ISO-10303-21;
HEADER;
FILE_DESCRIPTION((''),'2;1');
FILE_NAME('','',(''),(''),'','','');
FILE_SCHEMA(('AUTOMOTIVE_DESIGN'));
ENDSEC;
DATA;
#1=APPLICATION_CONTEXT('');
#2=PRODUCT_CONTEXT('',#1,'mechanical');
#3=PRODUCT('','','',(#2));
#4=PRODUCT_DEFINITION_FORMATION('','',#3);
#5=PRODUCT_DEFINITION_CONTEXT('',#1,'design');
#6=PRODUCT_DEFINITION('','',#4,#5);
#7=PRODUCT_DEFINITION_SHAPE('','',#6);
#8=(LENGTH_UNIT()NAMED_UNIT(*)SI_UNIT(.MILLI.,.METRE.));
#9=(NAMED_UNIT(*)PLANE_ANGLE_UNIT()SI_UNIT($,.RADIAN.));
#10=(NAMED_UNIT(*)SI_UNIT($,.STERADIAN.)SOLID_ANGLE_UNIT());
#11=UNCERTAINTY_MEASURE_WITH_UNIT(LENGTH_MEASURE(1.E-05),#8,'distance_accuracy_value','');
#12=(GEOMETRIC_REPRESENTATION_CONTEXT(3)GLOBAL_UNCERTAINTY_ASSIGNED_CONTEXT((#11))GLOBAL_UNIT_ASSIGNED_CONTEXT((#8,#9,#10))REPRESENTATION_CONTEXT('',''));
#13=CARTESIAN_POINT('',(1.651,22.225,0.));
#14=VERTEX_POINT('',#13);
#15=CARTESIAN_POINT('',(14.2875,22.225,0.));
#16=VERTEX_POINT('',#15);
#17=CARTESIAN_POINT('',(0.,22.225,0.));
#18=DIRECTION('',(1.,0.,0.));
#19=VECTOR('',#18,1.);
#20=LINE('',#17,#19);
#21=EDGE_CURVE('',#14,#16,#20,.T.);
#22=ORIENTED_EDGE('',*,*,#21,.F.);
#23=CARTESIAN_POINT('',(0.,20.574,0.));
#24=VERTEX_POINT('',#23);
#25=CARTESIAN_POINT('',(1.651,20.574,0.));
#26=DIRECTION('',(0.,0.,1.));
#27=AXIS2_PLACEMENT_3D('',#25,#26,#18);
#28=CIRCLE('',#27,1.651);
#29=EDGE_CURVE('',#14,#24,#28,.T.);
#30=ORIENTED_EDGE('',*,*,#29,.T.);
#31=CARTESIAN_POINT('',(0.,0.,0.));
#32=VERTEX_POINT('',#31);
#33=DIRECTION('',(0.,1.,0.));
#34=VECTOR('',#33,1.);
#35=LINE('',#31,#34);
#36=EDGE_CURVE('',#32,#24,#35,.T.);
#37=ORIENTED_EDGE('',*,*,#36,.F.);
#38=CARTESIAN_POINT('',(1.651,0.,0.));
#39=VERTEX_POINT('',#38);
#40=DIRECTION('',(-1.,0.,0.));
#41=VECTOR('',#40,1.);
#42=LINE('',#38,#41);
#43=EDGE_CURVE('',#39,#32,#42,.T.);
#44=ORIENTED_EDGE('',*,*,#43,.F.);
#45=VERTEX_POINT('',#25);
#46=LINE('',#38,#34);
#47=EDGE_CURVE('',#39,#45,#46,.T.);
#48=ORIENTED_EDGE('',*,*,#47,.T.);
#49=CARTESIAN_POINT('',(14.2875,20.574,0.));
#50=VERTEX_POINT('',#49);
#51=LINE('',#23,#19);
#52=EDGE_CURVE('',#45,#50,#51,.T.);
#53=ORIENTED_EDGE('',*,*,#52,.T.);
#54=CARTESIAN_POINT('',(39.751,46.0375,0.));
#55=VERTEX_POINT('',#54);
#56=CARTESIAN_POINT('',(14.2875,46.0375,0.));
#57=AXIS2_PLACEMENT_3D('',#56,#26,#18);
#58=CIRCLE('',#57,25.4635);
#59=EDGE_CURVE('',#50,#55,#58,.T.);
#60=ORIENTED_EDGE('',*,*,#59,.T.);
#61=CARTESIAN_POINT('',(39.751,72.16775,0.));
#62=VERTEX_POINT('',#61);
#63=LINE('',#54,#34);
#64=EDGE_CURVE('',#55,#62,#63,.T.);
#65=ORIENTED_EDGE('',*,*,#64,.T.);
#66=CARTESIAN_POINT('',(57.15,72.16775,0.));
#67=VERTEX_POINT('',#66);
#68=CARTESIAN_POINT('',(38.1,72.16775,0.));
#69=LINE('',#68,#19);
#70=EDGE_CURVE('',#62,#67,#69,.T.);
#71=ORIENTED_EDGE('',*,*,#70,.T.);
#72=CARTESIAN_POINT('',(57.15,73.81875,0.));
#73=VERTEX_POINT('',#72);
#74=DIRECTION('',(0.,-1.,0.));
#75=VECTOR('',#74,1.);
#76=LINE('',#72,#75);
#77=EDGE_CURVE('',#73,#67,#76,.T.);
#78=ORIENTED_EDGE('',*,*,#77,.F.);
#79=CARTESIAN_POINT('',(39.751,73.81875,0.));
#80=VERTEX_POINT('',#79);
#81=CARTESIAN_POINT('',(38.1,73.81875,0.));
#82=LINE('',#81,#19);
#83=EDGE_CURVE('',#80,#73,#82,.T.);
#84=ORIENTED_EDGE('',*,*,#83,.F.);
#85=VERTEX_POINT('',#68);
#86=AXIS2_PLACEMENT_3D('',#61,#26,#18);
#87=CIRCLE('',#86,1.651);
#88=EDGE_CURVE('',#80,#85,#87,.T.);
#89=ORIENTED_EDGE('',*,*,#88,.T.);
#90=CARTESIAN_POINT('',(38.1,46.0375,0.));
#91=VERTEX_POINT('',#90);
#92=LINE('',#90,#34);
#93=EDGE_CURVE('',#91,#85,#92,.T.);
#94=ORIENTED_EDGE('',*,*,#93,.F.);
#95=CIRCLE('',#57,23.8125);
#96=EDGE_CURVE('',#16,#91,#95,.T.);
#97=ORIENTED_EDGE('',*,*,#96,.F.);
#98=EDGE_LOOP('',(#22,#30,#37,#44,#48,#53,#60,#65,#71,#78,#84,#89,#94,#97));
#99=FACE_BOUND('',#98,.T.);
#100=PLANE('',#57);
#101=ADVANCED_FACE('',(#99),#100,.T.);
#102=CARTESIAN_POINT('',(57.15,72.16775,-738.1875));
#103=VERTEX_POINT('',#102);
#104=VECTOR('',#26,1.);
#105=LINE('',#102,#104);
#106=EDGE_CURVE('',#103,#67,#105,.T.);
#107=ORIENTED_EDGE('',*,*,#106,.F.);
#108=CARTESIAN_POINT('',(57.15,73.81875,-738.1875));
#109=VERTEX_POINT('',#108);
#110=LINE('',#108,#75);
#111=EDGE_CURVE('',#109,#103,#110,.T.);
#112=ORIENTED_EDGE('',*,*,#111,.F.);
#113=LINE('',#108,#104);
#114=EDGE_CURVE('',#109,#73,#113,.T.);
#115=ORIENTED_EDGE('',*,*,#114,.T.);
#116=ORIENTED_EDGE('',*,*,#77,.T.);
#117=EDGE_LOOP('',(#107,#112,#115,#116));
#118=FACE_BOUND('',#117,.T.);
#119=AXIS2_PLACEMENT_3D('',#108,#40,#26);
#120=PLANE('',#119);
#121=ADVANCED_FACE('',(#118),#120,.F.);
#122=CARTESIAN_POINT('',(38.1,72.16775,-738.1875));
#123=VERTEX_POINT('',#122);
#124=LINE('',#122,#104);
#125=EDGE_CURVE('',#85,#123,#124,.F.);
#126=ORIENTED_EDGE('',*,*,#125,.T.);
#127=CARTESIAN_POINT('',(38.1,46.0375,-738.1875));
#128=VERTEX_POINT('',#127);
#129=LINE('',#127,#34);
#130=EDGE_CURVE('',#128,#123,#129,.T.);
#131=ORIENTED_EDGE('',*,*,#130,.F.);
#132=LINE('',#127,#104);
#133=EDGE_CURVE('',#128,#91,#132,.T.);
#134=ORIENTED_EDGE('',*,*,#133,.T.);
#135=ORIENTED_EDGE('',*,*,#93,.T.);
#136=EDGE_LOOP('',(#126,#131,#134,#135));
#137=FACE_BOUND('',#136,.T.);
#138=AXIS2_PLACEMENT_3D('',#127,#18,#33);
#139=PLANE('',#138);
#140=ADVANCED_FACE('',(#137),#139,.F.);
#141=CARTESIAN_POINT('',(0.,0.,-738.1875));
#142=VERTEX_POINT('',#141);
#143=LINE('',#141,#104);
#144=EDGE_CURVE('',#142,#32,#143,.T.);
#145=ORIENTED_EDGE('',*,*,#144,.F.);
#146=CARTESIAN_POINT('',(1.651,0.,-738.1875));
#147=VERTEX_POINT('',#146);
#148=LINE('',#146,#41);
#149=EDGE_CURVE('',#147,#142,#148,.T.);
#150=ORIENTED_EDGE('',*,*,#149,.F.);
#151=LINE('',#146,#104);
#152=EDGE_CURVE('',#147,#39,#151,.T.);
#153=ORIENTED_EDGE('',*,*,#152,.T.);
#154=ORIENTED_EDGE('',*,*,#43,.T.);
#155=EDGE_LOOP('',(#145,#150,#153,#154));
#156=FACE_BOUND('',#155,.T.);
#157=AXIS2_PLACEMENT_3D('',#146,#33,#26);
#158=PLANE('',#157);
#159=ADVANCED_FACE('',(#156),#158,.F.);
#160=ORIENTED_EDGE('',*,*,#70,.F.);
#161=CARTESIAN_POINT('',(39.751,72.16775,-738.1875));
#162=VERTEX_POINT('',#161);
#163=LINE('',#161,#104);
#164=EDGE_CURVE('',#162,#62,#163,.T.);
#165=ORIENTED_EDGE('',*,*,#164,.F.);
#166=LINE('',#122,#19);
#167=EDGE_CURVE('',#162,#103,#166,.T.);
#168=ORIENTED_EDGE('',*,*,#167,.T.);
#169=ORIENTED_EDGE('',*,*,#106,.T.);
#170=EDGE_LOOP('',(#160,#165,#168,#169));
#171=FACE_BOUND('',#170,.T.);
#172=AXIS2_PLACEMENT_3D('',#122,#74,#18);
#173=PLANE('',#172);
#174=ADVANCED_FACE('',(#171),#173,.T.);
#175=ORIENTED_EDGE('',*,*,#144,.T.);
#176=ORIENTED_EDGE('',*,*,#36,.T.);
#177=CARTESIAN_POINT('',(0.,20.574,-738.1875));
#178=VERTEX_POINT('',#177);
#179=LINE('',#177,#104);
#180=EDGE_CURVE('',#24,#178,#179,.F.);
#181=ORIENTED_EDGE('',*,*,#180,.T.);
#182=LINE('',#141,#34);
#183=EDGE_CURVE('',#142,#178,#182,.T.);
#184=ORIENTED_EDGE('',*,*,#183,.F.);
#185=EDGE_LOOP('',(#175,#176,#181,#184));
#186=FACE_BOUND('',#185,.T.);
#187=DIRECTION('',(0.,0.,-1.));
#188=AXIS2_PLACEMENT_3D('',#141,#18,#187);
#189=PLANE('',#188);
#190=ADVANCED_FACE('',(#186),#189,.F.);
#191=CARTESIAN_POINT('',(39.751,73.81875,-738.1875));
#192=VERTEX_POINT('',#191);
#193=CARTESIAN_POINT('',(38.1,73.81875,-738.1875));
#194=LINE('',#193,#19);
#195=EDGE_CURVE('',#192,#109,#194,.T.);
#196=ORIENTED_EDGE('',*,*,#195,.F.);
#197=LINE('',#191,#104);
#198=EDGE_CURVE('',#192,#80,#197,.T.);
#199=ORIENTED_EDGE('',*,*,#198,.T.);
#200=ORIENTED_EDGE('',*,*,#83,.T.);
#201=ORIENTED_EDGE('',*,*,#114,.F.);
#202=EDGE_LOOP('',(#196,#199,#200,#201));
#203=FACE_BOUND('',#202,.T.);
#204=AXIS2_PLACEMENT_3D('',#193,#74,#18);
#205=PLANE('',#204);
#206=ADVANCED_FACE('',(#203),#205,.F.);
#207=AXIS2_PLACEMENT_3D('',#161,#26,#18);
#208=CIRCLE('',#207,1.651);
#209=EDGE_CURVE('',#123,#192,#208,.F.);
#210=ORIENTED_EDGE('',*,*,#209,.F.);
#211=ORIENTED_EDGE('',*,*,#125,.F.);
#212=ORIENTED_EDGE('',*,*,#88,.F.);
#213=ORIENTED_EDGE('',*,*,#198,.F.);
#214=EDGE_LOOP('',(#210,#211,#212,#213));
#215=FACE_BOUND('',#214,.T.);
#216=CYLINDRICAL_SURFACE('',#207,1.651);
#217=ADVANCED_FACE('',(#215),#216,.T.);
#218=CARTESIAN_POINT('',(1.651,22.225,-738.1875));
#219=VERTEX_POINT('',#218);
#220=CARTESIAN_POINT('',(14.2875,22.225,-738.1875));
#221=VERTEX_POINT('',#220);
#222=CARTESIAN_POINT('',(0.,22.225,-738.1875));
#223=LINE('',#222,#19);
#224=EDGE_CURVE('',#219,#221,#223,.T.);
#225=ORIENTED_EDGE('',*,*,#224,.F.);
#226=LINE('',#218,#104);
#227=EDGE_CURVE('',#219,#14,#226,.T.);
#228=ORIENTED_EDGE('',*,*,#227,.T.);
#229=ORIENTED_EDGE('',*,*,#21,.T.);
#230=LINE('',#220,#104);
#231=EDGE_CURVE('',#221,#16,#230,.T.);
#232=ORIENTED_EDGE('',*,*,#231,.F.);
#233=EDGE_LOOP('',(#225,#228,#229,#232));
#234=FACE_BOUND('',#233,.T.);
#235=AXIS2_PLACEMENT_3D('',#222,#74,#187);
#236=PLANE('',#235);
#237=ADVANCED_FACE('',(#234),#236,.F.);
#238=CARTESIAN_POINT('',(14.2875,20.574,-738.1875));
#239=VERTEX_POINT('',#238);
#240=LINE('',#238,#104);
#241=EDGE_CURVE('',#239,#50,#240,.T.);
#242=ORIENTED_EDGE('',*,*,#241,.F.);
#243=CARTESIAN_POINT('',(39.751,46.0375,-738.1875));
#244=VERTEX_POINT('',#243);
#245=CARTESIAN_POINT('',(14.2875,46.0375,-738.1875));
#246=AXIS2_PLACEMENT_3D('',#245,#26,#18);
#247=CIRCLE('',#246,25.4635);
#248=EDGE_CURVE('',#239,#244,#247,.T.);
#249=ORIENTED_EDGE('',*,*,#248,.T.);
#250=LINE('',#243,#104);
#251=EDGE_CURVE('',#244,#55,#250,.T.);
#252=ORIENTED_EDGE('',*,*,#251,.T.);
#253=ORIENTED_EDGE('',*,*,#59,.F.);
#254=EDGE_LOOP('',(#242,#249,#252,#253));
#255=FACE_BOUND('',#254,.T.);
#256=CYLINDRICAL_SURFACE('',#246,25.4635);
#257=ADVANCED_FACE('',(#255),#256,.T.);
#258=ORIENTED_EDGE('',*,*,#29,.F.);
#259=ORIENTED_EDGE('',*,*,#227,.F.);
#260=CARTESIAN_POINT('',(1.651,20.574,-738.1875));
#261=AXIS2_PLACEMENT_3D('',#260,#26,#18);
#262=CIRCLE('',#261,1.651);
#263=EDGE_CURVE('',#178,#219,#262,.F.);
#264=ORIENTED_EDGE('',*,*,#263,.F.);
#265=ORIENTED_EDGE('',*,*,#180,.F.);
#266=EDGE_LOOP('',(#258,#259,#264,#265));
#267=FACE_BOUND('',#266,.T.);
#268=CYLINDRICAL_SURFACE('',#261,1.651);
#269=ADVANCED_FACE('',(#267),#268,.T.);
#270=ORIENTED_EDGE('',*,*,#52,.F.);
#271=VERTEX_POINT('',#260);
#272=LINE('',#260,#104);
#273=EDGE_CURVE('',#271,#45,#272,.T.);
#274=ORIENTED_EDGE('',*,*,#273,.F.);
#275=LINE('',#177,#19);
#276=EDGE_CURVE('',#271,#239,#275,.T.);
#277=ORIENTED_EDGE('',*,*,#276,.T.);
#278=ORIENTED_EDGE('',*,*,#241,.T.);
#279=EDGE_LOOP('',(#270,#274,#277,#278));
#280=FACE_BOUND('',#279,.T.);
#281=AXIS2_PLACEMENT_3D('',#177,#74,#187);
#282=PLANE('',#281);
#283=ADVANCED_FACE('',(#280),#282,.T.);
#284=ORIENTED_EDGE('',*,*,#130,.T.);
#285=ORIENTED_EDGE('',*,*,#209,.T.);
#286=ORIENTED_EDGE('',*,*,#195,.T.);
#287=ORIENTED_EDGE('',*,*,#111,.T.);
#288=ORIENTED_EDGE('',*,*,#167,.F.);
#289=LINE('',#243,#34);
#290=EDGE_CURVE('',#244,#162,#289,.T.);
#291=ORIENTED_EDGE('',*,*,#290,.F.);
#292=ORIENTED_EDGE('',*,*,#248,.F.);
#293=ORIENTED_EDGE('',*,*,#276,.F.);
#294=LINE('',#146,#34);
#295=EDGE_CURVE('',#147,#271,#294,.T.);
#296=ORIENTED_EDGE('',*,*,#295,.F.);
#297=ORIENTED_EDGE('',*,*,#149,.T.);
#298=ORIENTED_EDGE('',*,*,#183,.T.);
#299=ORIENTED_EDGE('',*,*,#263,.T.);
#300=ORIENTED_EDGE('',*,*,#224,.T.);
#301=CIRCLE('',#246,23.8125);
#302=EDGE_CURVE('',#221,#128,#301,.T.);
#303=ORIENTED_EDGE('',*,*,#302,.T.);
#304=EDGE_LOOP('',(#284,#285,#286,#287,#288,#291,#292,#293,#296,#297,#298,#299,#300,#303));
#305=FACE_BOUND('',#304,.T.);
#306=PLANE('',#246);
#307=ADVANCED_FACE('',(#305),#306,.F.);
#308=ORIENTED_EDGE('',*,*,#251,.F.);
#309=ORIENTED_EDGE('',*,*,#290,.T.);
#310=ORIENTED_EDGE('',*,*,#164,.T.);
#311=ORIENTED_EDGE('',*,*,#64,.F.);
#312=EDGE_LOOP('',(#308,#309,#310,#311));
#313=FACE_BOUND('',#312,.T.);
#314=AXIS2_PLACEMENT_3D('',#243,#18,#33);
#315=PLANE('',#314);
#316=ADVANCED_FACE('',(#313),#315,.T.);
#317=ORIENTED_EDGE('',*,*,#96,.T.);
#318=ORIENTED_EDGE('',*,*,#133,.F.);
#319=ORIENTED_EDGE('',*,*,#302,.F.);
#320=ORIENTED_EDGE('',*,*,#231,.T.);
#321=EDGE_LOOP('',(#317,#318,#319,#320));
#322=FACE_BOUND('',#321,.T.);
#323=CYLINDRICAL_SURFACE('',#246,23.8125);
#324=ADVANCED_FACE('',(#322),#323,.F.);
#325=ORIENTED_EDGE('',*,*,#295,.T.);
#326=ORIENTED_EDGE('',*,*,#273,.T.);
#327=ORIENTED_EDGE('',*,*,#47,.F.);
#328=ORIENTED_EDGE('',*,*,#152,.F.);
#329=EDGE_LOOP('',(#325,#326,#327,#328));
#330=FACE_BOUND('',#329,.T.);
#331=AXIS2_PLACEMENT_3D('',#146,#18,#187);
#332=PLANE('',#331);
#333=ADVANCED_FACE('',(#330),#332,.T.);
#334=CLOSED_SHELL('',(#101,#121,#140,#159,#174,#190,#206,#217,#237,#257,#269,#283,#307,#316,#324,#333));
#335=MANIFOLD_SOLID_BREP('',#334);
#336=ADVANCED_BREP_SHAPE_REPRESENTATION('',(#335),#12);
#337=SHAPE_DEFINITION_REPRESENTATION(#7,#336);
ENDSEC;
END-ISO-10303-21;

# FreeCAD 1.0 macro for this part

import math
import FreeCAD as App
import Part
import Sketcher
from FreeCAD import Vector
Q = App.Units.Quantity


def edges_at(feature, points):
    """Names of the edges that pass closest to the given points."""
    edges = feature.Shape.Edges
    near = lambda p: min(range(len(edges)), key=lambda i: edges[i].distToShape(Part.Vertex(*p))[0])
    return sorted({f"Edge{near(p) + 1}" for p in points})

doc = App.newDocument("Part")
params = doc.addObject("Spreadsheet::Sheet", "Params")
for row, (alias, value) in enumerate([
    ("sketch1_radius", "0.9375 in"),
    ("sketch1_width", "0.75 in"),
    ("sketch1_height", "0.81 in"),
    ("sketch1_height2", "1.09375 in"),
    ("pad1_length", "29.0625 in"),
    ("fillet_radius", "0.065 in"),
], start=1):
    params.set(f"A{row}", alias)
    params.set(f"B{row}", "=" + value)
    params.setAlias(f"B{row}", alias)

body = doc.addObject("PartDesign::Body", "Body")

# Sketch on XY plane
sketch1 = body.newObject("Sketcher::SketchObject", "Sketch")
sketch1.AttachmentSupport = (doc.getObject("XY_Plane"), [""])
sketch1.MapMode = "FlatFace"
sketch1.addGeometry([
    Part.LineSegment(Vector(0, 22.2, 0), Vector(0, 0, 0)),  # 0
    Part.LineSegment(Vector(0, 0, 0), Vector(1.7, 0, 0)),  # 1
    Part.LineSegment(Vector(1.7, 0, 0), Vector(1.7, 20.6, 0)),  # 2
    Part.LineSegment(Vector(1.7, 20.6, 0), Vector(14.3, 20.6, 0)),  # 3
    Part.ArcOfCircle(Part.Circle(Vector(14.3, 46, 0), Vector(0, 0, 1), 25.5), math.radians(-90), math.radians(0)),  # 4
    Part.LineSegment(Vector(39.8, 46, 0), Vector(39.8, 72.2, 0)),  # 5
    Part.LineSegment(Vector(39.8, 72.2, 0), Vector(57.1, 72.2, 0)),  # 6
    Part.LineSegment(Vector(57.1, 72.2, 0), Vector(57.1, 73.8, 0)),  # 7
    Part.LineSegment(Vector(57.1, 73.8, 0), Vector(38.1, 73.8, 0)),  # 8
    Part.LineSegment(Vector(38.1, 73.8, 0), Vector(38.1, 46, 0)),  # 9
    Part.ArcOfCircle(Part.Circle(Vector(14.3, 46, 0), Vector(0, 0, 1), 23.8), math.radians(-90), math.radians(0)),  # 10
    Part.LineSegment(Vector(14.3, 22.2, 0), Vector(0, 22.2, 0)),  # 11
], False)
sketch1.addConstraint([
    Sketcher.Constraint("Coincident", 0, 2, 1, 1),
    Sketcher.Constraint("Coincident", 1, 2, 2, 1),
    Sketcher.Constraint("Coincident", 2, 2, 3, 1),
    Sketcher.Constraint("Tangent", 3, 2, 4, 1),
    Sketcher.Constraint("Tangent", 4, 2, 5, 1),
    Sketcher.Constraint("Coincident", 5, 2, 6, 1),
    Sketcher.Constraint("Coincident", 6, 2, 7, 1),
    Sketcher.Constraint("Coincident", 7, 2, 8, 1),
    Sketcher.Constraint("Coincident", 8, 2, 9, 1),
    Sketcher.Constraint("Tangent", 9, 2, 10, 2),
    Sketcher.Constraint("Tangent", 10, 1, 11, 1),
    Sketcher.Constraint("Coincident", 11, 2, 0, 1),
    Sketcher.Constraint("Vertical", 0),
    Sketcher.Constraint("Horizontal", 1),
    Sketcher.Constraint("Vertical", 2),
    Sketcher.Constraint("Horizontal", 3),
    Sketcher.Constraint("Vertical", 5),
    Sketcher.Constraint("Horizontal", 6),
    Sketcher.Constraint("Vertical", 7),
    Sketcher.Constraint("Horizontal", 8),
    Sketcher.Constraint("Vertical", 9),
    Sketcher.Constraint("Horizontal", 11),
    Sketcher.Constraint("Coincident", 0, 2, -1, 1),
    Sketcher.Constraint("Coincident", 10, 3, 4, 3),
    Sketcher.Constraint("Equal", 1, 7),
    Sketcher.Constraint("Radius", 10, Q("0.9375 in")),
    Sketcher.Constraint("DistanceX", 8, 2, 8, 1, Q("0.75 in")),
    Sketcher.Constraint("DistanceY", 2, 1, 2, 2, Q("0.81 in")),
    Sketcher.Constraint("DistanceX", -1, 1, 8, 2, Q("1.5 in")),
    Sketcher.Constraint("Radius", 4, Q("1.0025 in")),
    Sketcher.Constraint("DistanceX", 2, 2, 4, 2, Q("1.5 in")),
    Sketcher.Constraint("DistanceY", 9, 2, 9, 1, Q("1.09375 in")),
])
sketch1.setExpression("Constraints[25]", "Params.sketch1_radius")
sketch1.setExpression("Constraints[26]", "Params.sketch1_width")
sketch1.setExpression("Constraints[27]", "Params.sketch1_height")
sketch1.setExpression("Constraints[31]", "Params.sketch1_height2")
pad1 = body.newObject("PartDesign::Pad", "Pad")
pad1.Profile = sketch1
pad1.setExpression("Length", "Params.pad1_length")
pad1.Reversed = True
doc.recompute()

fillet = body.newObject("PartDesign::Fillet", "Fillet")
fillet.Base = (pad1, edges_at(pad1, [(0, 22.225, -369.094), (38.1, 73.819, -369.094)]))
fillet.setExpression("Radius", "Params.fillet_radius")

doc.recompute()
